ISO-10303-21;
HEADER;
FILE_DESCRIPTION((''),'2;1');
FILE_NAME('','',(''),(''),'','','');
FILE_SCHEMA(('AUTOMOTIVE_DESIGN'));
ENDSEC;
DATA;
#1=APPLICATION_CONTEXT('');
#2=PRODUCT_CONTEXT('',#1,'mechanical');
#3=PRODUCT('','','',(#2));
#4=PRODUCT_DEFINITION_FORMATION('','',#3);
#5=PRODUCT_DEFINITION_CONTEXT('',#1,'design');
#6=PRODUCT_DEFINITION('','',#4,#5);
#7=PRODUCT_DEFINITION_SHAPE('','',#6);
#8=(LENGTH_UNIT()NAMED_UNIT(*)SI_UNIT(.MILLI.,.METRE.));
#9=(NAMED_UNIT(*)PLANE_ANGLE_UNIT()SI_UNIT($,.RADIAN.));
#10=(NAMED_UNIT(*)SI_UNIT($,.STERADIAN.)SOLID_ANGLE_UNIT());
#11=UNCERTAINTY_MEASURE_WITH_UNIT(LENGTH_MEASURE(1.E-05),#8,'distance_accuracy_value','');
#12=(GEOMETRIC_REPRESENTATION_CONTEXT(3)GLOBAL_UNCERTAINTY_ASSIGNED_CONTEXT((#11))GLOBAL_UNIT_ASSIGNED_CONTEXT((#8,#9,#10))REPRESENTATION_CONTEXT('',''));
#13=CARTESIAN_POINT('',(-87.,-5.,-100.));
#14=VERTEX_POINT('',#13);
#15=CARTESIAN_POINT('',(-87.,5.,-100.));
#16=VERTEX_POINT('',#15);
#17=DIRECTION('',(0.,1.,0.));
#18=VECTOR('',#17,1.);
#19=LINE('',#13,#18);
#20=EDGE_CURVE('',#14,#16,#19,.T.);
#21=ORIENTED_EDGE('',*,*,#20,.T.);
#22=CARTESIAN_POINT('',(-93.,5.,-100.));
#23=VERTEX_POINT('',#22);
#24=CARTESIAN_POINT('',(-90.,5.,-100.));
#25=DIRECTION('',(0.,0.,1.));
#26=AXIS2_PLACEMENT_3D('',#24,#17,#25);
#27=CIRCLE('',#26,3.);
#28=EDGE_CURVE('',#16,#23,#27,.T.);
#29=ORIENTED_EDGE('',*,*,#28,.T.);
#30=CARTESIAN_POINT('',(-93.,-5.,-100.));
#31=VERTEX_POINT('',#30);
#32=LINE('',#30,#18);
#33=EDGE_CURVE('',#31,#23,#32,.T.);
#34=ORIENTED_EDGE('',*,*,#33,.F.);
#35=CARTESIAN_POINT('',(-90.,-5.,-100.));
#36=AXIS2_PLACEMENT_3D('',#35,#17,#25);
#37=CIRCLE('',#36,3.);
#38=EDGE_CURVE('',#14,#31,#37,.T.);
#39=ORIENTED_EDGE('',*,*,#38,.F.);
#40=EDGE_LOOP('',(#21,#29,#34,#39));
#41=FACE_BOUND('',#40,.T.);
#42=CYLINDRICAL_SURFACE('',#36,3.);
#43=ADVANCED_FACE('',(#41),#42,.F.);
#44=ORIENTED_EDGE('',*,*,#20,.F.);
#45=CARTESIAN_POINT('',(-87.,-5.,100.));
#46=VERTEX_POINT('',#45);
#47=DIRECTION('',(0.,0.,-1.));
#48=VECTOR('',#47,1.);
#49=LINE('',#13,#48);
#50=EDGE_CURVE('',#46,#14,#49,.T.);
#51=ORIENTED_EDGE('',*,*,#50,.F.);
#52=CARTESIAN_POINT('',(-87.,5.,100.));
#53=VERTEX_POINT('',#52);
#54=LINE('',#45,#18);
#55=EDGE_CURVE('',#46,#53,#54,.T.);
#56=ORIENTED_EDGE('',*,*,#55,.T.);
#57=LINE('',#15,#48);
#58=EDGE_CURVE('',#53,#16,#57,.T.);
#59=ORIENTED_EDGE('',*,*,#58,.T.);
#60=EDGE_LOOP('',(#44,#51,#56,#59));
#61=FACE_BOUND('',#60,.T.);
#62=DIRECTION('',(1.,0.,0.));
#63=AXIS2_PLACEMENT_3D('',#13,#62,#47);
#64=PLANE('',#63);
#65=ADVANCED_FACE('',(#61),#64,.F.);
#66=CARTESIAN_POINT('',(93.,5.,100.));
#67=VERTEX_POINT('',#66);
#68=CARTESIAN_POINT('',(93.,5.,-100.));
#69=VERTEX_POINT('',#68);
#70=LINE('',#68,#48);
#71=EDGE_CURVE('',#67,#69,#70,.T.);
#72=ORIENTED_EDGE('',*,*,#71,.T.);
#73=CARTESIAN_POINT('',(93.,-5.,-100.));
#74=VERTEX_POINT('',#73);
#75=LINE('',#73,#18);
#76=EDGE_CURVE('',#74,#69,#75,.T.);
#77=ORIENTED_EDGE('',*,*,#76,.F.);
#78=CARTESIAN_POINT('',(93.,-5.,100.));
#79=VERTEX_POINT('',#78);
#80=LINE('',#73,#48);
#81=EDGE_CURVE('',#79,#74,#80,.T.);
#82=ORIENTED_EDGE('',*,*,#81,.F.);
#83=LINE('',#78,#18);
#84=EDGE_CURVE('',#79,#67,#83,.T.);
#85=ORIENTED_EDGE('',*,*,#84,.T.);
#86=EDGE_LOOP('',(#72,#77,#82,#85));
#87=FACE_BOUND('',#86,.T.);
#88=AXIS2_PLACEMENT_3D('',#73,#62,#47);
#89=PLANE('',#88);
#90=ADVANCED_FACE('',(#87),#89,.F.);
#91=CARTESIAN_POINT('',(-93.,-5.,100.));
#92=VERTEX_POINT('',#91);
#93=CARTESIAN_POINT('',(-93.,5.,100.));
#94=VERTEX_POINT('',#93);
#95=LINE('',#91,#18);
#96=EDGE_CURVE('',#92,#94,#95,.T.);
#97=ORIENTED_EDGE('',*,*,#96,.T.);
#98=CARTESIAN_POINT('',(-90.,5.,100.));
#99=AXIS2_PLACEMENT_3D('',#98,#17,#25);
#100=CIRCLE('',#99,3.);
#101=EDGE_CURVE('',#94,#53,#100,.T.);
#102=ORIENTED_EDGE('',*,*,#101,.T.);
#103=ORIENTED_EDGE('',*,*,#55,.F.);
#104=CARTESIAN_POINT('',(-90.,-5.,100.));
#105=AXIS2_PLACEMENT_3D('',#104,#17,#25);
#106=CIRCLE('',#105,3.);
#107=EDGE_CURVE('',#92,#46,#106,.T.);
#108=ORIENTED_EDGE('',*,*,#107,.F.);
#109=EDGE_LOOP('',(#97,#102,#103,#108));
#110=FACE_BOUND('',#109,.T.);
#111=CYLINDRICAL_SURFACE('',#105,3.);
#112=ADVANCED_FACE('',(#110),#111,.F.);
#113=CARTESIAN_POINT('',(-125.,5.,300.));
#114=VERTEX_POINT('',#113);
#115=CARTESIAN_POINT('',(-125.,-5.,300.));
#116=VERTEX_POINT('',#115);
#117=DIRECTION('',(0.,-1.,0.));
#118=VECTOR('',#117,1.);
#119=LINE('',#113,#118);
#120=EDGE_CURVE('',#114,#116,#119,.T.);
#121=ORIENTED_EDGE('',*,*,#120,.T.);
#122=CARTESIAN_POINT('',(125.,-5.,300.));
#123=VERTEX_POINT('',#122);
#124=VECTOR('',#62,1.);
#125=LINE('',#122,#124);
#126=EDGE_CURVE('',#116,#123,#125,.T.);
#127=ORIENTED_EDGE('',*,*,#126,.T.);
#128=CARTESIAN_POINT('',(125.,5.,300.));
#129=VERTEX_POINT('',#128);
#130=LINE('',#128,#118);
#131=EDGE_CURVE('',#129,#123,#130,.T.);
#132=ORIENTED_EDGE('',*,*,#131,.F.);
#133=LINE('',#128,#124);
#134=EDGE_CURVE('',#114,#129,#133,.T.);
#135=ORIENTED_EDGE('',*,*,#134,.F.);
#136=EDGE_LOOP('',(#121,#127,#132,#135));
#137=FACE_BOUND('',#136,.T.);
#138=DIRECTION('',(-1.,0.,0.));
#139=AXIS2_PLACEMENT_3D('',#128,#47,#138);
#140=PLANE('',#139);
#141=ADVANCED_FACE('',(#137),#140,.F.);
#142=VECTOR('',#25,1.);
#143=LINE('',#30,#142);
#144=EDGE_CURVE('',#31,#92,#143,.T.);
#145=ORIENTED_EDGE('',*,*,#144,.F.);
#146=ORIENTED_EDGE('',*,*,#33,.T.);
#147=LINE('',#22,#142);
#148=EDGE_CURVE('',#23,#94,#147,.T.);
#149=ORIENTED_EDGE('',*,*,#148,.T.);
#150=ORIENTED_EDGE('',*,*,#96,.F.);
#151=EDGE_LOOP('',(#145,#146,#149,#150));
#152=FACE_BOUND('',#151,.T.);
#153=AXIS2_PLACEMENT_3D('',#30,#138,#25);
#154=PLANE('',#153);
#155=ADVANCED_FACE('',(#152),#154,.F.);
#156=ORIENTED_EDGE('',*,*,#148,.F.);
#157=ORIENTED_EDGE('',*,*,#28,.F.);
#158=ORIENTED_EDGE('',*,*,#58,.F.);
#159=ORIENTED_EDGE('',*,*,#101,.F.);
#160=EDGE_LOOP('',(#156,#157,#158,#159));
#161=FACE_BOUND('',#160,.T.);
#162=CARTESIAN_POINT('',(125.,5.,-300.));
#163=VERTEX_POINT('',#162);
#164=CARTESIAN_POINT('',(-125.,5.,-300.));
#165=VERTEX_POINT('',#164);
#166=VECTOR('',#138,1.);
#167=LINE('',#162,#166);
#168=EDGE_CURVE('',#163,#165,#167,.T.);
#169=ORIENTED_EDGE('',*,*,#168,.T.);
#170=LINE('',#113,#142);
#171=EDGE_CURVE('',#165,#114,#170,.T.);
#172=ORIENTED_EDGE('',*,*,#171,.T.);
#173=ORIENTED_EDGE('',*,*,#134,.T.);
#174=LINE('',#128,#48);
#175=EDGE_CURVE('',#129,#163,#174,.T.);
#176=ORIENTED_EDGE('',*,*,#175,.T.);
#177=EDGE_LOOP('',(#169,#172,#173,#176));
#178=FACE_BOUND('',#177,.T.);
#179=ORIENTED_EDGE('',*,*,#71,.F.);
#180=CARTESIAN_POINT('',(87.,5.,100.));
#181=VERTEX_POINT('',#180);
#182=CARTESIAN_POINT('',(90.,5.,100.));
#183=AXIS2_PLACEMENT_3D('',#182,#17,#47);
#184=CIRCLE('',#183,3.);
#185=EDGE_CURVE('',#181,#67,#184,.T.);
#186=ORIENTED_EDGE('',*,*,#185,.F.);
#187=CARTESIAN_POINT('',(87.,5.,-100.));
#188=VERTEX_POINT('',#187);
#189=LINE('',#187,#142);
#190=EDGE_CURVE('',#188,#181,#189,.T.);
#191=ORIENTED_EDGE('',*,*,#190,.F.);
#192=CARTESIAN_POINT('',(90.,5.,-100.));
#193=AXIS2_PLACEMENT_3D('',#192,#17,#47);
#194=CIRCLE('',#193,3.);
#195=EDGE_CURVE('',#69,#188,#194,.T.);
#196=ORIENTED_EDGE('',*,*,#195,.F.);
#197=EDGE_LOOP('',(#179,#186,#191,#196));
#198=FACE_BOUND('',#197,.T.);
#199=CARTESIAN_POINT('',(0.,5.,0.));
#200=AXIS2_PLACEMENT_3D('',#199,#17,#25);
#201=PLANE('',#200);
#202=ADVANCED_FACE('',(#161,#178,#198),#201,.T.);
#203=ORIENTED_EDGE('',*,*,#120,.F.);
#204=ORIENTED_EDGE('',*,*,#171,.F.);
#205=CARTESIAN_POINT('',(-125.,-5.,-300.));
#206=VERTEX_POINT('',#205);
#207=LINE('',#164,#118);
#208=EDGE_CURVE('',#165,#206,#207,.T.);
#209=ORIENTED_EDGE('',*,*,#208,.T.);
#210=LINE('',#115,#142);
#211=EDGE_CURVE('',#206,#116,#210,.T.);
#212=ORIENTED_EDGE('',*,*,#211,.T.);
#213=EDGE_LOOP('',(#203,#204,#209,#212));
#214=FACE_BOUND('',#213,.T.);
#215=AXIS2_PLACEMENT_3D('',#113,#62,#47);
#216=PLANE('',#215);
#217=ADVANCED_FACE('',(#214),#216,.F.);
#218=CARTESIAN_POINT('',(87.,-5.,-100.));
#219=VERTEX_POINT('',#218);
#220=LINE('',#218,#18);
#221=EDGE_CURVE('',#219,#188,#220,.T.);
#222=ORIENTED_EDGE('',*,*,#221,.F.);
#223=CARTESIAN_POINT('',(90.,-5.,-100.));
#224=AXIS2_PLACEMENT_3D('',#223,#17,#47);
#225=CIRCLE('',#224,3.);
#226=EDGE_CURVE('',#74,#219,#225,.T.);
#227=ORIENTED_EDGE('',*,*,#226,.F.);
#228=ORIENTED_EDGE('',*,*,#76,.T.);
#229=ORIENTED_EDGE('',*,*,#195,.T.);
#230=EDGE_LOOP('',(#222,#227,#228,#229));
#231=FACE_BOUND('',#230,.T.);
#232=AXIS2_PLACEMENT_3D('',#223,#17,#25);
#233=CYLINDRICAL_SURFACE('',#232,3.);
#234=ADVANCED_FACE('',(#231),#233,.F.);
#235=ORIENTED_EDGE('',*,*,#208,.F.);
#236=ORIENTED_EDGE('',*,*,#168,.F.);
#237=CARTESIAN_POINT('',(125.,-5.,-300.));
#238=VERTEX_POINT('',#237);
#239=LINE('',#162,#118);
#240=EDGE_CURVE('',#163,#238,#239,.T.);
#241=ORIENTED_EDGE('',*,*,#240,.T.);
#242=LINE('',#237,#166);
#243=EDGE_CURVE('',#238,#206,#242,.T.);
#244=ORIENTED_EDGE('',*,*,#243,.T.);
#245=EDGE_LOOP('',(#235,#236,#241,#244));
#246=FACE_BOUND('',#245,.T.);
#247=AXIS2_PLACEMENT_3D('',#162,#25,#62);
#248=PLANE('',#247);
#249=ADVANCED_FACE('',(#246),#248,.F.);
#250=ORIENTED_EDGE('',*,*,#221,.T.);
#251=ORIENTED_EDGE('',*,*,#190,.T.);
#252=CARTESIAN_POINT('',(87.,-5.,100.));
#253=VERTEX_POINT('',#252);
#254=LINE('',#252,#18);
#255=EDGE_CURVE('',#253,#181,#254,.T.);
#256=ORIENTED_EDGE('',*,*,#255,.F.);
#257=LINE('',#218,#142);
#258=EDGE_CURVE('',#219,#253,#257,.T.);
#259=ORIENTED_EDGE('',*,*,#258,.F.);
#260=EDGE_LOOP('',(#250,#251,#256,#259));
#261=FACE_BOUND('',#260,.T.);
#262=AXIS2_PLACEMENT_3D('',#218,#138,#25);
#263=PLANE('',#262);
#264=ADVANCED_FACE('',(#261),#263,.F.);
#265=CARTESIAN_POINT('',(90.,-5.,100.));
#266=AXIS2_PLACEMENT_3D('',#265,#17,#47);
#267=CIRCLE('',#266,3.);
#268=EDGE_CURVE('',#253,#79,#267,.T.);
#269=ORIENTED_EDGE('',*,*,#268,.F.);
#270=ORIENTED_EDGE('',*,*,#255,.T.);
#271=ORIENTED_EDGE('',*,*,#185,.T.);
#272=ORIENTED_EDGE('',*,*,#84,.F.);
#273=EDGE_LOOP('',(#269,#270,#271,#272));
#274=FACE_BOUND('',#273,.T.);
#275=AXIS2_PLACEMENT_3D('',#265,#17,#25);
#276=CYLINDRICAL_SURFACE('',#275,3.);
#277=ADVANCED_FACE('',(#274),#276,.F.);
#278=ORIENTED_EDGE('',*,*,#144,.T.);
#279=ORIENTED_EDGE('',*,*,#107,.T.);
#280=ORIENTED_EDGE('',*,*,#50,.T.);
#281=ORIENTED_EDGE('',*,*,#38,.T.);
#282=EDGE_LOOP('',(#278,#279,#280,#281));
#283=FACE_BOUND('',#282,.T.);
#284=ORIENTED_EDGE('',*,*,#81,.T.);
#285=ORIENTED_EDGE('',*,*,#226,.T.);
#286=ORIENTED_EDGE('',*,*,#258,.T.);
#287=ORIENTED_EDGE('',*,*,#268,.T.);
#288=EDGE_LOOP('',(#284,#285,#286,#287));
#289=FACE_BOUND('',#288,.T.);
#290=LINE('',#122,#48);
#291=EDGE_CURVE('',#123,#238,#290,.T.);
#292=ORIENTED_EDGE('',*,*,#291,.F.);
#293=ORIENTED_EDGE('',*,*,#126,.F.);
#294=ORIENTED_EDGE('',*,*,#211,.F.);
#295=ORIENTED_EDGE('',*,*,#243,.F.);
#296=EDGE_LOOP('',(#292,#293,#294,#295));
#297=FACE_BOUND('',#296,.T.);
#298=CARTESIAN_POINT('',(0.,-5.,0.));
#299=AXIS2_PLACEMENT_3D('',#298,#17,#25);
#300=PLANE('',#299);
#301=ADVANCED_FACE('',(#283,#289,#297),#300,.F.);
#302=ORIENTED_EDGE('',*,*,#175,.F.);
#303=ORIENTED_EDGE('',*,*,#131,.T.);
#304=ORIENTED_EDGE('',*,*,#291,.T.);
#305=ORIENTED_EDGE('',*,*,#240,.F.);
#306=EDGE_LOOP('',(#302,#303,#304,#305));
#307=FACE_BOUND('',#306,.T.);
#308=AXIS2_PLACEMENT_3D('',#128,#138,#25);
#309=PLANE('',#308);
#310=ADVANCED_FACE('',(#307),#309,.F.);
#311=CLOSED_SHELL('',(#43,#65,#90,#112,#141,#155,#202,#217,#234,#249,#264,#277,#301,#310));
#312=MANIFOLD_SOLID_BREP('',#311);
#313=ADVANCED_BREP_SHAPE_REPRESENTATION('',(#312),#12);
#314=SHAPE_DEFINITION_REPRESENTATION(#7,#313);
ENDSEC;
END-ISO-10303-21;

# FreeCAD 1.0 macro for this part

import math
import FreeCAD as App
import Part
import Sketcher

V = App.Vector

doc = App.newDocument("Part")
body = doc.addObject("PartDesign::Body", "Body")

sketch1 = body.newObject("Sketcher::SketchObject", "Sketch")
sketch1.AttachmentSupport = (doc.getObject("XZ_Plane"), [""])
sketch1.MapMode = "FlatFace"
sketch1.addGeometry(Part.LineSegment(V(-125, -300, 0), V(-125, 300, 0)), False)
sketch1.addGeometry(Part.LineSegment(V(-125, 300, 0), V(125, 300, 0)), False)
sketch1.addGeometry(Part.LineSegment(V(125, 300, 0), V(125, -300, 0)), False)
sketch1.addGeometry(Part.LineSegment(V(125, -300, 0), V(-125, -300, 0)), False)
sketch1.addConstraint(Sketcher.Constraint("Coincident", 0, 2, 1, 1))
sketch1.addConstraint(Sketcher.Constraint("Coincident", 1, 2, 2, 1))
sketch1.addConstraint(Sketcher.Constraint("Coincident", 2, 2, 3, 1))
sketch1.addConstraint(Sketcher.Constraint("Coincident", 3, 2, 0, 1))
sketch1.addConstraint(Sketcher.Constraint("Vertical", 0))
sketch1.addConstraint(Sketcher.Constraint("Horizontal", 1))
sketch1.addConstraint(Sketcher.Constraint("Vertical", 2))
sketch1.addConstraint(Sketcher.Constraint("Horizontal", 3))
sketch1.addConstraint(Sketcher.Constraint("Symmetric", 0, 2, 2, 2, -1, 1))
sketch1.addConstraint(Sketcher.Constraint("DistanceX", 1, 1, 1, 2, 250.0))
sketch1.addConstraint(Sketcher.Constraint("DistanceY", 0, 1, 0, 2, 600.0))
pad1 = body.newObject("PartDesign::Pad", "Pad")
pad1.Profile = sketch1
pad1.Length = 10
pad1.Midplane = True

sketch2 = body.newObject("Sketcher::SketchObject", "Sketch001")
sketch2.AttachmentSupport = (doc.getObject("XZ_Plane"), [""])
sketch2.MapMode = "FlatFace"
sketch2.AttachmentOffset = App.Placement(V(0, 0, -5), App.Rotation())
sketch2.addGeometry(Part.LineSegment(V(-87, 100, 0), V(-87, -100, 0)), False)
sketch2.addGeometry(Part.ArcOfCircle(Part.Circle(V(-90, -100, 0), V(0, 0, 1), 3), math.radians(180), math.radians(360)), False)
sketch2.addGeometry(Part.LineSegment(V(-93, -100, 0), V(-93, 100, 0)), False)
sketch2.addGeometry(Part.ArcOfCircle(Part.Circle(V(-90, 100, 0), V(0, 0, 1), 3), math.radians(0), math.radians(180)), False)
sketch2.addGeometry(Part.LineSegment(V(87, -100, 0), V(87, 100, 0)), False)
sketch2.addGeometry(Part.ArcOfCircle(Part.Circle(V(90, 100, 0), V(0, 0, 1), 3), math.radians(0), math.radians(180)), False)
sketch2.addGeometry(Part.LineSegment(V(93, 100, 0), V(93, -100, 0)), False)
sketch2.addGeometry(Part.ArcOfCircle(Part.Circle(V(90, -100, 0), V(0, 0, 1), 3), math.radians(180), math.radians(360)), False)
sketch2.addConstraint(Sketcher.Constraint("Tangent", 0, 2, 1, 2))
sketch2.addConstraint(Sketcher.Constraint("Tangent", 1, 1, 2, 1))
sketch2.addConstraint(Sketcher.Constraint("Tangent", 2, 2, 3, 2))
sketch2.addConstraint(Sketcher.Constraint("Tangent", 3, 1, 0, 1))
sketch2.addConstraint(Sketcher.Constraint("Tangent", 4, 2, 5, 2))
sketch2.addConstraint(Sketcher.Constraint("Tangent", 5, 1, 6, 1))
sketch2.addConstraint(Sketcher.Constraint("Tangent", 6, 2, 7, 2))
sketch2.addConstraint(Sketcher.Constraint("Tangent", 7, 1, 4, 1))
sketch2.addConstraint(Sketcher.Constraint("Vertical", 0))
sketch2.addConstraint(Sketcher.Constraint("Vertical", 2))
sketch2.addConstraint(Sketcher.Constraint("Vertical", 4))
sketch2.addConstraint(Sketcher.Constraint("Vertical", 6))
sketch2.addConstraint(Sketcher.Constraint("Equal", 3, 5))
sketch2.addConstraint(Sketcher.Constraint("Symmetric", 1, 3, 5, 3, -1, 1))
sketch2.addConstraint(Sketcher.Constraint("Horizontal", 3, 3, 5, 3))
sketch2.addConstraint(Sketcher.Constraint("Horizontal", 1, 3, 7, 3))
sketch2.addConstraint(Sketcher.Constraint("Radius", 1, 3.0))
sketch2.addConstraint(Sketcher.Constraint("DistanceY", 0, 2, 0, 1, 200.0))
sketch2.addConstraint(Sketcher.Constraint("DistanceX", 1, 3, -1, 1, 90.0))
pocket1 = body.newObject("PartDesign::Pocket", "Pocket")
pocket1.Profile = sketch2
pocket1.Type = "ThroughAll"
pocket1.Reversed = True

doc.recompute()
